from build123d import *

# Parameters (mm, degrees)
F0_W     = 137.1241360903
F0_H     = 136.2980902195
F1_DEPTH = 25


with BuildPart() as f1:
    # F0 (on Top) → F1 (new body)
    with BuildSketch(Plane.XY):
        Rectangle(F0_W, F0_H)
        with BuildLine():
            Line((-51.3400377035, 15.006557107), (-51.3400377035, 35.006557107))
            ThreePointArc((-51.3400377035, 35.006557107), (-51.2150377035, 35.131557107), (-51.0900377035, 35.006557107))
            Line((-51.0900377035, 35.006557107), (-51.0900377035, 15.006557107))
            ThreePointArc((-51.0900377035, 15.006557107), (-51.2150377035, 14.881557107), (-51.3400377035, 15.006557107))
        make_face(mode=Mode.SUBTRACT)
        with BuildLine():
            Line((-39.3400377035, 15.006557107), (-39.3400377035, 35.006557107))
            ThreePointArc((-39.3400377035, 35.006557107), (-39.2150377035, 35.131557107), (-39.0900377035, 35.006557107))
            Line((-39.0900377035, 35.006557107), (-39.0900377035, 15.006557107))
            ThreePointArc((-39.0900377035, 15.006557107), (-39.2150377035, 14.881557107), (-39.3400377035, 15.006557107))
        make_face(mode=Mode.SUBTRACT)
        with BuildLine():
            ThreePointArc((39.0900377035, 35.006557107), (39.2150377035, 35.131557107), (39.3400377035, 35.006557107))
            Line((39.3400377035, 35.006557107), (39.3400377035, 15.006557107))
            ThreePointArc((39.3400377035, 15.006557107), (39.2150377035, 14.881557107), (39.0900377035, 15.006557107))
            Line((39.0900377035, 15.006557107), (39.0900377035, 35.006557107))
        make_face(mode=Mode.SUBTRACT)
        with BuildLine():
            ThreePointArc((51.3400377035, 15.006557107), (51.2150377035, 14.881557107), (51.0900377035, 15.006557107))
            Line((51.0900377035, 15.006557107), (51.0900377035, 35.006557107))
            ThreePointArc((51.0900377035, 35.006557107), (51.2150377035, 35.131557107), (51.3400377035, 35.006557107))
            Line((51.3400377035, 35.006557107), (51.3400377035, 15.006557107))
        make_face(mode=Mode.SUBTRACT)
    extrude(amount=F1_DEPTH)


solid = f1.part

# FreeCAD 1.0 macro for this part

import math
import FreeCAD as App
import Part
import Sketcher
Q = App.Units.Quantity


def add_polygon(sketch, points):
    """Adds a closed chain of lines whose ends are joined by coincident constraints."""
    first, n = sketch.GeometryCount, len(points)
    for a, b in zip(points, points[1:] + points[:1]):
        sketch.addGeometry(Part.LineSegment(App.Vector(*a, 0), App.Vector(*b, 0)), False)
    for i in range(n):
        sketch.addConstraint(Sketcher.Constraint("Coincident", first + i, 2, first + (i + 1) % n, 1))

doc = App.newDocument("Part")
body = doc.addObject("PartDesign::Body", "Body")

sketch1 = body.newObject("Sketcher::SketchObject", "Sketch")
sketch1.AttachmentSupport = (doc.getObject("XY_Plane"), [""])
sketch1.MapMode = "FlatFace"
add_polygon(sketch1, [(-68.56, 68.15), (-68.56, -68.15), (68.56, -68.15), (68.56, 68.15)])
sketch1.addGeometry(Part.ArcOfCircle(Part.Circle(App.Vector(-51.22, 15.01, 0), App.Vector(0, 0, 1), 0.12), math.radians(180), math.radians(360)), False)
sketch1.addGeometry(Part.LineSegment(App.Vector(-51.34, 15.01, 0), App.Vector(-51.34, 35.01, 0)), False)
sketch1.addGeometry(Part.ArcOfCircle(Part.Circle(App.Vector(-51.22, 35.01, 0), App.Vector(0, 0, 1), 0.12), math.radians(0), math.radians(180)), False)
sketch1.addGeometry(Part.LineSegment(App.Vector(-51.09, 35.01, 0), App.Vector(-51.09, 15.01, 0)), False)
sketch1.addGeometry(Part.ArcOfCircle(Part.Circle(App.Vector(-39.22, 15.01, 0), App.Vector(0, 0, 1), 0.12), math.radians(180), math.radians(360)), False)
sketch1.addGeometry(Part.LineSegment(App.Vector(-39.34, 15.01, 0), App.Vector(-39.34, 35.01, 0)), False)
sketch1.addGeometry(Part.ArcOfCircle(Part.Circle(App.Vector(-39.22, 35.01, 0), App.Vector(0, 0, 1), 0.12), math.radians(0), math.radians(180)), False)
sketch1.addGeometry(Part.LineSegment(App.Vector(-39.09, 35.01, 0), App.Vector(-39.09, 15.01, 0)), False)
sketch1.addGeometry(Part.LineSegment(App.Vector(39.09, 15.01, 0), App.Vector(39.09, 35.01, 0)), False)
sketch1.addGeometry(Part.ArcOfCircle(Part.Circle(App.Vector(39.22, 35.01, 0), App.Vector(0, 0, 1), 0.12), math.radians(0), math.radians(180)), False)
sketch1.addGeometry(Part.LineSegment(App.Vector(39.34, 35.01, 0), App.Vector(39.34, 15.01, 0)), False)
sketch1.addGeometry(Part.ArcOfCircle(Part.Circle(App.Vector(39.22, 15.01, 0), App.Vector(0, 0, 1), 0.12), math.radians(180), math.radians(360)), False)
sketch1.addGeometry(Part.LineSegment(App.Vector(51.34, 35.01, 0), App.Vector(51.34, 15.01, 0)), False)
sketch1.addGeometry(Part.ArcOfCircle(Part.Circle(App.Vector(51.22, 15.01, 0), App.Vector(0, 0, 1), 0.12), math.radians(180), math.radians(360)), False)
sketch1.addGeometry(Part.LineSegment(App.Vector(51.09, 15.01, 0), App.Vector(51.09, 35.01, 0)), False)
sketch1.addGeometry(Part.ArcOfCircle(Part.Circle(App.Vector(51.22, 35.01, 0), App.Vector(0, 0, 1), 0.12), math.radians(0), math.radians(180)), False)
sketch1.addConstraint([
    Sketcher.Constraint("Tangent", 4, 1, 5, 1),
    Sketcher.Constraint("Tangent", 5, 2, 6, 2),
    Sketcher.Constraint("Tangent", 6, 1, 7, 1),
    Sketcher.Constraint("Tangent", 7, 2, 4, 2),
    Sketcher.Constraint("Tangent", 8, 1, 9, 1),
    Sketcher.Constraint("Tangent", 9, 2, 10, 2),
    Sketcher.Constraint("Tangent", 10, 1, 11, 1),
    Sketcher.Constraint("Tangent", 11, 2, 8, 2),
    Sketcher.Constraint("Tangent", 12, 2, 13, 2),
    Sketcher.Constraint("Tangent", 13, 1, 14, 1),
    Sketcher.Constraint("Tangent", 14, 2, 15, 2),
    Sketcher.Constraint("Tangent", 15, 1, 12, 1),
    Sketcher.Constraint("Tangent", 16, 2, 17, 2),
    Sketcher.Constraint("Tangent", 17, 1, 18, 1),
    Sketcher.Constraint("Tangent", 18, 2, 19, 2),
    Sketcher.Constraint("Tangent", 19, 1, 16, 1),
    Sketcher.Constraint("Vertical", 0),
    Sketcher.Constraint("Horizontal", 1),
    Sketcher.Constraint("Vertical", 2),
    Sketcher.Constraint("Horizontal", 3),
    Sketcher.Constraint("Vertical", 5),
    Sketcher.Constraint("Vertical", 7),
    Sketcher.Constraint("Vertical", 9),
    Sketcher.Constraint("Vertical", 11),
    Sketcher.Constraint("Vertical", 12),
    Sketcher.Constraint("Vertical", 14),
    Sketcher.Constraint("Vertical", 16),
    Sketcher.Constraint("Vertical", 18),
    Sketcher.Constraint("Equal", 6, 8),
    Sketcher.Constraint("Equal", 10, 13),
    Sketcher.Constraint("Equal", 15, 17),
    Sketcher.Constraint("Symmetric", 0, 2, 2, 2, -1, 1),
    Sketcher.Constraint("Symmetric", 10, 3, 13, 3, -2),
    Sketcher.Constraint("Symmetric", 4, 3, 17, 3, -2),
    Sketcher.Constraint("Horizontal", 4, 3, 8, 3),
    Sketcher.Constraint("Horizontal", 6, 3, 10, 3),
    Sketcher.Constraint("Horizontal", 8, 3, 15, 3),
    Sketcher.Constraint("Horizontal", 13, 3, 19, 3),
    Sketcher.Constraint("DistanceY", 5, 1, 5, 2, Q("20 mm")),
    Sketcher.Constraint("Radius", 4, Q("0.125 mm")),
    Sketcher.Constraint("DistanceX", 4, 3, 8, 3, Q("12 mm")),
    Sketcher.Constraint("DistanceY", 0, 2, 0, 1, Q("136.29809 mm")),
    Sketcher.Constraint("DistanceX", 1, 1, 1, 2, Q("137.124136 mm")),
    Sketcher.Constraint("DistanceX", 0, 2, 4, 3, Q("17.34703 mm")),
    Sketcher.Constraint("DistanceY", 19, 3, 2, 2, Q("33.142488 mm")),
])
pad1 = body.newObject("PartDesign::Pad", "Pad")
pad1.Profile = sketch1
pad1.Length = 25

doc.recompute()
